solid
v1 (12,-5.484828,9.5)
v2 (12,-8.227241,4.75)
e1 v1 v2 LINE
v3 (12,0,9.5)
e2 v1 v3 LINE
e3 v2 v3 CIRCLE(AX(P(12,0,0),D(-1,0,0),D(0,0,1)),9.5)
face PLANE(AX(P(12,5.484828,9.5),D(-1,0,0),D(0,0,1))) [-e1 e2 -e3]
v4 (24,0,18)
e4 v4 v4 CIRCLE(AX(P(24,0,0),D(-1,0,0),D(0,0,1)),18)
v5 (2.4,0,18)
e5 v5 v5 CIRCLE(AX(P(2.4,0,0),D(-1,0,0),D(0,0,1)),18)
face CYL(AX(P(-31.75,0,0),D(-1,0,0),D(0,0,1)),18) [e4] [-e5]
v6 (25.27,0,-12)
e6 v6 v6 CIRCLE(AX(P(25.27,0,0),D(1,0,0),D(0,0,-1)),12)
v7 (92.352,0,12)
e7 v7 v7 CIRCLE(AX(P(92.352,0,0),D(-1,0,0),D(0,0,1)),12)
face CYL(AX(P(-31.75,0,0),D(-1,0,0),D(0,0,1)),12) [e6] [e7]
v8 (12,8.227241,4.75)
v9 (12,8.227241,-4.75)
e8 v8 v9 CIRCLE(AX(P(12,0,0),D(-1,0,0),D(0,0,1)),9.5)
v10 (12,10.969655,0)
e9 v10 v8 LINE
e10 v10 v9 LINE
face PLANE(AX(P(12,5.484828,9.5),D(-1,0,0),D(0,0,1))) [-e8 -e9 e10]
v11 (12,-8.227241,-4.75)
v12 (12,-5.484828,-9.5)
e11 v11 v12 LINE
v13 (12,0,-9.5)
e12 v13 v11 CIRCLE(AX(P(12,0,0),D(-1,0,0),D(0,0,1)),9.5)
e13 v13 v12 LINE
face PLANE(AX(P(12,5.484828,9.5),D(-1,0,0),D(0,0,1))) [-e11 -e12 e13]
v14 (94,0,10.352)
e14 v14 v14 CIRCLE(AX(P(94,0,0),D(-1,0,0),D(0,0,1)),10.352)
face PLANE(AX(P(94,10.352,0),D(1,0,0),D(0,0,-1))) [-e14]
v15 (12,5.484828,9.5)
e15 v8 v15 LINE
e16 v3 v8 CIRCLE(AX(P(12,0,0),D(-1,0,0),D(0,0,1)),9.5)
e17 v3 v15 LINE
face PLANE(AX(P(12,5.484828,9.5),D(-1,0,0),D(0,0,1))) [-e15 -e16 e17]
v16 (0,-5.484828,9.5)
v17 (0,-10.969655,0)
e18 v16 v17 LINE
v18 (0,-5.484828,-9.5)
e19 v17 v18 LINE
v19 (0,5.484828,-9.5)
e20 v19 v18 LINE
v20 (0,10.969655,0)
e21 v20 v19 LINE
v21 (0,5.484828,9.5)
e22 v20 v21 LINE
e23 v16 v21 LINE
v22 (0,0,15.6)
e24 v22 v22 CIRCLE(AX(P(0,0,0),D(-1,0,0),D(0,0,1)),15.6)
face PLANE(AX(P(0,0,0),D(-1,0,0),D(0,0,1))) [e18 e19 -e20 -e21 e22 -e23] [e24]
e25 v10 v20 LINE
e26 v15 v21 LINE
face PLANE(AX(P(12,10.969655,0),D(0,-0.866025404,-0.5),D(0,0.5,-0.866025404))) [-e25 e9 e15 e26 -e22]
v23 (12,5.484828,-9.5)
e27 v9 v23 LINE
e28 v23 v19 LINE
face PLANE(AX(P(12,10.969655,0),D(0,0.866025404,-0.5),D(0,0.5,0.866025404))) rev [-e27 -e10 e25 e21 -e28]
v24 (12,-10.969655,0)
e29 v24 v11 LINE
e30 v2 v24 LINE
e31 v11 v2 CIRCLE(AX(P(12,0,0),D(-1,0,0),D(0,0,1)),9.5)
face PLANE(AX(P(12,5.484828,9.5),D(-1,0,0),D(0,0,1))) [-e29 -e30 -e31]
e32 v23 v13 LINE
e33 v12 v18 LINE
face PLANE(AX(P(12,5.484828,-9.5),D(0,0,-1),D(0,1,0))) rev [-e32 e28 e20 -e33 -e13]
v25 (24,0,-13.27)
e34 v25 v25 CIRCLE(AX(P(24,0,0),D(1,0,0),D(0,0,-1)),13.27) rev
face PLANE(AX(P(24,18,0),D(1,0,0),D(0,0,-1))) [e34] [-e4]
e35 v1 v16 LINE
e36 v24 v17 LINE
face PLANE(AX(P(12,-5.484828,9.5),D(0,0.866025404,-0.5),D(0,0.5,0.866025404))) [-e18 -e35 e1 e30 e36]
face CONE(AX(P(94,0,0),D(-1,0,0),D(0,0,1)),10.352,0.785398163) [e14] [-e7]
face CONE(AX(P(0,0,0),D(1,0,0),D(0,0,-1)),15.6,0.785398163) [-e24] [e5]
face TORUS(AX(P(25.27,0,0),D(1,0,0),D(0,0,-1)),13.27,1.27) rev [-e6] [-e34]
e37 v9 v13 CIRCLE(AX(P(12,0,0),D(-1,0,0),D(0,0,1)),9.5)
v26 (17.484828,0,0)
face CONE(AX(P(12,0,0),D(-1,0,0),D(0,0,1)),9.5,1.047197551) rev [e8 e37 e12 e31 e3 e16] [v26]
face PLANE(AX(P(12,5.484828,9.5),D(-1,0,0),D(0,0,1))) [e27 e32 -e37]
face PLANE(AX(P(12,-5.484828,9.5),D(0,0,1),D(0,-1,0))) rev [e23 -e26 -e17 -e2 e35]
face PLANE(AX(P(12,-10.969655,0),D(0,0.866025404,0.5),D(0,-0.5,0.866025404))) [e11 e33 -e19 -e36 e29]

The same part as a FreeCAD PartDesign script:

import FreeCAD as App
import Part
import Sketcher
Q = App.Units.Quantity


def edges_at(feature, points):
    """Names of the edges that pass closest to the given points."""
    edges = feature.Shape.Edges
    near = lambda p: min(range(len(edges)), key=lambda i: edges[i].distToShape(Part.Vertex(*p))[0])
    return sorted({f"Edge{near(p) + 1}" for p in points})

doc = App.newDocument("Part")
params = doc.addObject("Spreadsheet::Sheet", "Params")
for row, (alias, value) in enumerate([
    ("sketch1_width", "94 mm"),
    ("sketch1_height", "6 mm"),
    ("sketch1_width2", "21.6 mm"),
    ("sketch1_height2", "15.6 mm"),
    ("revolution_angle", "360 deg"),
    ("fillet_radius", "1.27 mm"),
    ("sketch2_width", "12 mm"),
    ("sketch2_height", "9.5 mm"),
    ("groove_angle", "360 deg"),
    ("pocket1_length", "12 mm"),
], start=1):
    params.set(f"A{row}", alias)
    params.set(f"B{row}", "=" + value)
    params.setAlias(f"B{row}", alias)

body = doc.addObject("PartDesign::Body", "Body")

# Sketch on XY plane
sketch1 = body.newObject("Sketcher::SketchObject", "Sketch")
sketch1.AttachmentSupport = (doc.getObject("XY_Plane"), [""])
sketch1.MapMode = "FlatFace"
sketch1.addGeometry([
    Part.LineSegment(App.Vector(0, 15.6, 0), App.Vector(0, 0, 0)),  # 0
    Part.LineSegment(App.Vector(0, 0, 0), App.Vector(94, 0, 0)),  # 1
    Part.LineSegment(App.Vector(94, 0, 0), App.Vector(94, 10.4, 0)),  # 2
    Part.LineSegment(App.Vector(94, 10.4, 0), App.Vector(92.4, 12, 0)),  # 3
    Part.LineSegment(App.Vector(92.4, 12, 0), App.Vector(24, 12, 0)),  # 4
    Part.LineSegment(App.Vector(24, 12, 0), App.Vector(24, 18, 0)),  # 5
    Part.LineSegment(App.Vector(24, 18, 0), App.Vector(2.4, 18, 0)),  # 6
    Part.LineSegment(App.Vector(2.4, 18, 0), App.Vector(0, 15.6, 0)),  # 7
], False)
sketch1.addConstraint([
    Sketcher.Constraint("Coincident", 0, 2, 1, 1),
    Sketcher.Constraint("Coincident", 1, 2, 2, 1),
    Sketcher.Constraint("Coincident", 2, 2, 3, 1),
    Sketcher.Constraint("Coincident", 3, 2, 4, 1),
    Sketcher.Constraint("Coincident", 4, 2, 5, 1),
    Sketcher.Constraint("Coincident", 5, 2, 6, 1),
    Sketcher.Constraint("Coincident", 6, 2, 7, 1),
    Sketcher.Constraint("Coincident", 7, 2, 0, 1),
    Sketcher.Constraint("Vertical", 0),
    Sketcher.Constraint("Horizontal", 1),
    Sketcher.Constraint("Vertical", 2),
    Sketcher.Constraint("Horizontal", 4),
    Sketcher.Constraint("Vertical", 5),
    Sketcher.Constraint("Horizontal", 6),
    Sketcher.Constraint("Coincident", 0, 2, -1, 1),
    Sketcher.Constraint("Perpendicular", 3, 7),
    Sketcher.Constraint("DistanceX", 1, 1, 1, 2, 94.0),
    Sketcher.Constraint("DistanceY", 5, 1, 5, 2, 6.0),
    Sketcher.Constraint("Angle", 3, Q("135 deg")),
    Sketcher.Constraint("DistanceX", 6, 2, 6, 1, 21.6),
    Sketcher.Constraint("DistanceY", 0, 2, 0, 1, 15.6),
    Sketcher.Constraint("DistanceY", -1, 1, 3, 2, 12.0),
    Sketcher.Constraint("DistanceX", 4, 2, 4, 1, 68.352),
])
sketch1.setExpression("Constraints[16]", "Params.sketch1_width")
sketch1.setExpression("Constraints[17]", "Params.sketch1_height")
sketch1.setExpression("Constraints[19]", "Params.sketch1_width2")
sketch1.setExpression("Constraints[20]", "Params.sketch1_height2")
revolution = body.newObject("PartDesign::Revolution", "Revolution")
revolution.Profile = sketch1
revolution.ReferenceAxis = (sketch1, ["H_Axis"])
revolution.setExpression("Angle", "Params.revolution_angle")
doc.recompute()

fillet = body.newObject("PartDesign::Fillet", "Fillet")
fillet.Base = (revolution, edges_at(revolution, [(24, -12, 0)]))
fillet.setExpression("Radius", "Params.fillet_radius")

# Sketch on XY plane
sketch2 = body.newObject("Sketcher::SketchObject", "Sketch001")
sketch2.AttachmentSupport = (doc.getObject("XY_Plane"), [""])
sketch2.MapMode = "FlatFace"
sketch2.addGeometry([
    Part.LineSegment(App.Vector(12, 10, 0), App.Vector(0, 10, 0)),
    Part.LineSegment(App.Vector(0, 10, 0), App.Vector(0, 0, 0)),
    Part.LineSegment(App.Vector(0, 0, 0), App.Vector(17, 0, 0)),
    Part.LineSegment(App.Vector(17, 0, 0), App.Vector(12, 10, 0)),
], False)
sketch2.addConstraint([
    Sketcher.Constraint("Coincident", 0, 2, 1, 1),
    Sketcher.Constraint("Coincident", 1, 2, 2, 1),
    Sketcher.Constraint("Coincident", 2, 2, 3, 1),
    Sketcher.Constraint("Coincident", 3, 2, 0, 1),
    Sketcher.Constraint("Horizontal", 0),
    Sketcher.Constraint("Vertical", 1),
    Sketcher.Constraint("Horizontal", 2),
    Sketcher.Constraint("Coincident", 1, 2, -1, 1),
    Sketcher.Constraint("DistanceX", 0, 2, 0, 1, 12.0),
    Sketcher.Constraint("Angle", 3, Q("120 deg")),
    Sketcher.Constraint("DistanceY", 1, 2, 1, 1, 9.5),
])
sketch2.setExpression("Constraints[8]", "Params.sketch2_width")
sketch2.setExpression("Constraints[10]", "Params.sketch2_height")
groove = body.newObject("PartDesign::Groove", "Groove")
groove.Profile = sketch2
groove.ReferenceAxis = (sketch2, ["H_Axis"])
groove.setExpression("Angle", "Params.groove_angle")

# Sketch on YZ plane
sketch3 = body.newObject("Sketcher::SketchObject", "Sketch002")
sketch3.AttachmentSupport = (doc.getObject("YZ_Plane"), [""])
sketch3.MapMode = "FlatFace"
sketch3.addGeometry([
    Part.LineSegment(App.Vector(11, 0, 0), App.Vector(5, -10, 0)),  # 0
    Part.LineSegment(App.Vector(5, -10, 0), App.Vector(-5, -10, 0)),  # 1
    Part.LineSegment(App.Vector(-5, -10, 0), App.Vector(-11, 0, 0)),  # 2
    Part.LineSegment(App.Vector(-11, 0, 0), App.Vector(-5, 10, 0)),  # 3
    Part.LineSegment(App.Vector(-5, 10, 0), App.Vector(5, 10, 0)),  # 4
    Part.LineSegment(App.Vector(5, 10, 0), App.Vector(11, 0, 0)),  # 5
], False)
sketch3.addConstraint([
    Sketcher.Constraint("Coincident", 0, 2, 1, 1),
    Sketcher.Constraint("Coincident", 1, 2, 2, 1),
    Sketcher.Constraint("Coincident", 2, 2, 3, 1),
    Sketcher.Constraint("Coincident", 3, 2, 4, 1),
    Sketcher.Constraint("Coincident", 4, 2, 5, 1),
    Sketcher.Constraint("Coincident", 5, 2, 0, 1),
    Sketcher.Constraint("Horizontal", 1),
    Sketcher.Constraint("Horizontal", 4),
    Sketcher.Constraint("Symmetric", 0, 2, 3, 2, -1, 1),
    Sketcher.Constraint("Symmetric", 2, 2, 5, 2, -1, 1),
    Sketcher.Constraint("PointOnObject", 2, 2, -1),
    Sketcher.Constraint("Parallel", 2, 5),
    Sketcher.Constraint("Vertical", 1, 2, 3, 2),
    Sketcher.Constraint("Angle", 0, Q("-120 deg")),
    Sketcher.Constraint("DistanceY", 1, 2, 3, 2, 19.0),
    Sketcher.Constraint("DistanceX", 1, 2, 1, 1, 10.969655),
])
pocket1 = body.newObject("PartDesign::Pocket", "Pocket")
pocket1.Profile = sketch3
pocket1.setExpression("Length", "Params.pocket1_length")
pocket1.Reversed = True

doc.recompute()
